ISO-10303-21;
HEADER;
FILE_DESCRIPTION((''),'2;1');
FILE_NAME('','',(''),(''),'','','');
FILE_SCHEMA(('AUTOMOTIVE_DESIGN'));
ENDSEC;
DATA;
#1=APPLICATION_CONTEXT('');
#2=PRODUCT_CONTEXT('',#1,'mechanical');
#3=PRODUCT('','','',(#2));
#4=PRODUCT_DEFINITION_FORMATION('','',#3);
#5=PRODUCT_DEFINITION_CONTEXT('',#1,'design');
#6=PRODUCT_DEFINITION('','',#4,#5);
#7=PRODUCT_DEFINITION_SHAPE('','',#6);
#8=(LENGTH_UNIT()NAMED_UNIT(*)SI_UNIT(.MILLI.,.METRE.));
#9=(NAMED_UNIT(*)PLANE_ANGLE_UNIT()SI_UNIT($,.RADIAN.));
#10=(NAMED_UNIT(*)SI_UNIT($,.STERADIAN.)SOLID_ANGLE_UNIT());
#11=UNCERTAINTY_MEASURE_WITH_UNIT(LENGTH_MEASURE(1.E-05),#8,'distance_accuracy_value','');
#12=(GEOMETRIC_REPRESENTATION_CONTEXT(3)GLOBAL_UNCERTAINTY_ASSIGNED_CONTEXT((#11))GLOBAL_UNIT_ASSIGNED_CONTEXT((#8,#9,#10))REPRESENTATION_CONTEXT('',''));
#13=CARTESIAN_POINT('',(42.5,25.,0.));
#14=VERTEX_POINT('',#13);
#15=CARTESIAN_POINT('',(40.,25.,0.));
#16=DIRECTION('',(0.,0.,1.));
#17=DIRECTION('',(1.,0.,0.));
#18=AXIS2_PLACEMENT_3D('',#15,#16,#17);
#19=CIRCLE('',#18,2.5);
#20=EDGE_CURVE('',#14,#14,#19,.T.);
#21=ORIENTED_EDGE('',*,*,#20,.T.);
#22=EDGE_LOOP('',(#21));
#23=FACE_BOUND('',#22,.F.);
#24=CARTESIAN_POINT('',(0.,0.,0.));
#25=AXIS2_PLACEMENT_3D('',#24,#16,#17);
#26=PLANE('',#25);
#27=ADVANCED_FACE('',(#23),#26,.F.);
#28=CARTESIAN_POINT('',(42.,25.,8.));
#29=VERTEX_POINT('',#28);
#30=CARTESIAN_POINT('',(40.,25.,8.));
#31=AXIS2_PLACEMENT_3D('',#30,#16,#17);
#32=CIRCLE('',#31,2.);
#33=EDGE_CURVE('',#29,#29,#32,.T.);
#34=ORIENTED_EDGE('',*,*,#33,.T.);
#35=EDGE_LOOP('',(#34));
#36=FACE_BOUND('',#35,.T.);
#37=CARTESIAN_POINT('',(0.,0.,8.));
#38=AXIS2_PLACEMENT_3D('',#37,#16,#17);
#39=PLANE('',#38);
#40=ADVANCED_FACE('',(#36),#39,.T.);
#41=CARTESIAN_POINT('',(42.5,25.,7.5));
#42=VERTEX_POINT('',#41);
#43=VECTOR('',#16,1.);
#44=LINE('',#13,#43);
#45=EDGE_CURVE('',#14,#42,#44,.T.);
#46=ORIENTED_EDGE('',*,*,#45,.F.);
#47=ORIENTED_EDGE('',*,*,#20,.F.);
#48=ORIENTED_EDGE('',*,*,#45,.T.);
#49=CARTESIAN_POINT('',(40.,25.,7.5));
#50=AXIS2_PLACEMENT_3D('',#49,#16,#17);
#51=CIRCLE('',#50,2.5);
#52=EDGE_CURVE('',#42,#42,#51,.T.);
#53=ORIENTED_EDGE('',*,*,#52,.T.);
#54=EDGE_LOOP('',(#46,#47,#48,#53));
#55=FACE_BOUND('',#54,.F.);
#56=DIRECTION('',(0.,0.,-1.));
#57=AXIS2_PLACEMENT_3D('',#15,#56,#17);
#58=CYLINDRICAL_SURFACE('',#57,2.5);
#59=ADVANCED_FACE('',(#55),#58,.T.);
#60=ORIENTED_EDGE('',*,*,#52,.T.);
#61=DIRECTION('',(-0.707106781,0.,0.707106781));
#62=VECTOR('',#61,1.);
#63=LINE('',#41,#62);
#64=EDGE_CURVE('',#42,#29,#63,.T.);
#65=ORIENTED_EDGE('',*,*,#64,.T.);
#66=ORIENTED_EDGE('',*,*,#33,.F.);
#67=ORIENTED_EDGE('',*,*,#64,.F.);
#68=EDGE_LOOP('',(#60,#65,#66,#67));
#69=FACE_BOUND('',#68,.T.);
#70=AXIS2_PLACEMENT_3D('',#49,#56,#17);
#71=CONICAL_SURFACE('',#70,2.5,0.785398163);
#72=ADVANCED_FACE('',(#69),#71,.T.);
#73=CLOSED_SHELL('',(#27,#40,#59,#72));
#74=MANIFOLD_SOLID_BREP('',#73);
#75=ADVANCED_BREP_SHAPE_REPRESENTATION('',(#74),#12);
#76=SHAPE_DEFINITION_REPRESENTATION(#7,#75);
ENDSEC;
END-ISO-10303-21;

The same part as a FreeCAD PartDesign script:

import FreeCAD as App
import Part
import Sketcher
from FreeCAD import Vector
Q = App.Units.Quantity


def edges_at(feature, points):
    """Names of the edges that pass closest to the given points."""
    edges = feature.Shape.Edges
    near = lambda p: min(range(len(edges)), key=lambda i: edges[i].distToShape(Part.Vertex(*p))[0])
    return sorted({f"Edge{near(p) + 1}" for p in points})

doc = App.newDocument("Part")
params = doc.addObject("Spreadsheet::Sheet", "Params")
for row, (alias, value) in enumerate([
    ("sketch1_diameter", "5 mm"),
    ("pad1_length", "8 mm"),
    ("chamfer_size", "0.5 mm"),
], start=1):
    params.set(f"A{row}", alias)
    params.set(f"B{row}", "=" + value)
    params.setAlias(f"B{row}", alias)

body = doc.addObject("PartDesign::Body", "Body")

sketch1 = body.newObject("Sketcher::SketchObject", "Sketch")
sketch1.AttachmentSupport = (doc.getObject("XY_Plane"), [""])
sketch1.MapMode = "FlatFace"
sketch1.addGeometry(Part.Circle(Vector(40, 25, 0), Vector(0, 0, 1), 2.5), False)
sketch1.addConstraint([
    Sketcher.Constraint("Diameter", 0, Q("5 mm")),
    Sketcher.Constraint("DistanceX", -1, 1, 0, 3, Q("40 mm")),
    Sketcher.Constraint("DistanceY", -1, 1, 0, 3, Q("25 mm")),
])
sketch1.setExpression("Constraints[0]", "Params.sketch1_diameter")
pad1 = body.newObject("PartDesign::Pad", "Pad")
pad1.Profile = sketch1
pad1.setExpression("Length", "Params.pad1_length")
doc.recompute()

chamfer = body.newObject("PartDesign::Chamfer", "Chamfer")
chamfer.Base = (pad1, edges_at(pad1, [(37.669, 24.096, 8)]))
chamfer.setExpression("Size", "Params.chamfer_size")

doc.recompute()
